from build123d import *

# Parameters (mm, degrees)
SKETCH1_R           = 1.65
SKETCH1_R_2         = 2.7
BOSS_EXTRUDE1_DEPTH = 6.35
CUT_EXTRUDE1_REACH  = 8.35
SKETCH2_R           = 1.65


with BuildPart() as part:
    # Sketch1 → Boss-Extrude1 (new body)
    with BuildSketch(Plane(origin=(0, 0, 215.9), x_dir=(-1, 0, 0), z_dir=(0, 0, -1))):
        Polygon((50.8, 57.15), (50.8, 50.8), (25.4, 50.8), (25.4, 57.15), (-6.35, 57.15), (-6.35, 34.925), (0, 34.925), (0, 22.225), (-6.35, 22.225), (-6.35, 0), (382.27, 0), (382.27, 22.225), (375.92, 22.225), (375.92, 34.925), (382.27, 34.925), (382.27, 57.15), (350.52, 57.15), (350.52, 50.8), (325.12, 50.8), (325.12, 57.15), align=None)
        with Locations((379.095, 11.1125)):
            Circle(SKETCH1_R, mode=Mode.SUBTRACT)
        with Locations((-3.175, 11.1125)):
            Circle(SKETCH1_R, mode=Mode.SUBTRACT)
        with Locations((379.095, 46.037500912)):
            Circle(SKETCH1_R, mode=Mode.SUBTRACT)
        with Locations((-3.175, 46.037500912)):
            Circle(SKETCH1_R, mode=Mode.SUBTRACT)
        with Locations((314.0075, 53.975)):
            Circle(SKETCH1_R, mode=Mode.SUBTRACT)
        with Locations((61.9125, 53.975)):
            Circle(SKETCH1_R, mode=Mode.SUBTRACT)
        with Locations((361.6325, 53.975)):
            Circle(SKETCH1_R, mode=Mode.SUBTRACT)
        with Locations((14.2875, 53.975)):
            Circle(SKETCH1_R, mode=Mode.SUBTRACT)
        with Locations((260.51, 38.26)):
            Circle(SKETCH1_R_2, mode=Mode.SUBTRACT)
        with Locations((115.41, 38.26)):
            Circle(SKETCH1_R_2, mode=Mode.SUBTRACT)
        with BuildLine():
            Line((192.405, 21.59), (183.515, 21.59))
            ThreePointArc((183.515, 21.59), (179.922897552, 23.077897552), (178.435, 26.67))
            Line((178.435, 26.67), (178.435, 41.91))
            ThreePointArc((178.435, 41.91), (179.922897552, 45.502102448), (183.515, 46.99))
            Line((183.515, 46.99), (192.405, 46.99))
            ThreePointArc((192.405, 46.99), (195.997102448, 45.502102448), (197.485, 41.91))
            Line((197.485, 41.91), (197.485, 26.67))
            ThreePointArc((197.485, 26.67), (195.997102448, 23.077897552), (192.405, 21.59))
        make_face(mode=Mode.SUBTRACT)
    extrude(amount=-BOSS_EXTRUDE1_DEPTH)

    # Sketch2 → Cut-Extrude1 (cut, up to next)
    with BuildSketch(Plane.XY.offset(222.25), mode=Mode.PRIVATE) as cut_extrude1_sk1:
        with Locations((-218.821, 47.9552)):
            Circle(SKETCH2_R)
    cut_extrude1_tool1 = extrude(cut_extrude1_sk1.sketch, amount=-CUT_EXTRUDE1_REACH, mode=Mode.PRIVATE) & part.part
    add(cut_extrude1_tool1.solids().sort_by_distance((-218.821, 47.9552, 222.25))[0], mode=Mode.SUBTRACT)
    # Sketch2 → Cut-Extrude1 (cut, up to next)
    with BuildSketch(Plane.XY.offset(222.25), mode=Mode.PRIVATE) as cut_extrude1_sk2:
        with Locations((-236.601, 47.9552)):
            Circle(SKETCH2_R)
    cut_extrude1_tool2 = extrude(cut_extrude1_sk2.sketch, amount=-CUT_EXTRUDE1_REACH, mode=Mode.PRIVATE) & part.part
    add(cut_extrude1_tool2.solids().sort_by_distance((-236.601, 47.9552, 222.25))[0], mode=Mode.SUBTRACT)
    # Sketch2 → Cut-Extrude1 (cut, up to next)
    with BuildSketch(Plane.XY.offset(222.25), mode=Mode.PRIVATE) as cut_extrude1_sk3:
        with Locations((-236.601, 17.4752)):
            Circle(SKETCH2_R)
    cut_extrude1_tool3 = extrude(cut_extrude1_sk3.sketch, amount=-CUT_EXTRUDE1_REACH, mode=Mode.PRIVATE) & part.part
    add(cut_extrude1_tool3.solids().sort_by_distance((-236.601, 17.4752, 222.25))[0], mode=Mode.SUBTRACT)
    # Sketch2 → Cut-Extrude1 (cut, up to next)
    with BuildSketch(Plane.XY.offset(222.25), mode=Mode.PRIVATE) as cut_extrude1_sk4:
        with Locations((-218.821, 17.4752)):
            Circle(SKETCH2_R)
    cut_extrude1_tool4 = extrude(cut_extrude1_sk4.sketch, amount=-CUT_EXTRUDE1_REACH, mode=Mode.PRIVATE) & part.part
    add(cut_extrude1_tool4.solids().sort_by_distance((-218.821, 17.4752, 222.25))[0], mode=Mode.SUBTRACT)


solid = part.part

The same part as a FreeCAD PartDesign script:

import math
import FreeCAD as App
import Part
import Sketcher
from FreeCAD import Vector
Q = App.Units.Quantity


def add_polygon(sketch, points):
    """Adds a closed chain of lines whose ends are joined by coincident constraints."""
    first, n = sketch.GeometryCount, len(points)
    for a, b in zip(points, points[1:] + points[:1]):
        sketch.addGeometry(Part.LineSegment(App.Vector(*a, 0), App.Vector(*b, 0)), False)
    for i in range(n):
        sketch.addConstraint(Sketcher.Constraint("Coincident", first + i, 2, first + (i + 1) % n, 1))

doc = App.newDocument("Part")
body = doc.addObject("PartDesign::Body", "Body")

# Sketch on XY plane
sketch1 = body.newObject("Sketcher::SketchObject", "Sketch")
sketch1.AttachmentSupport = (doc.getObject("XY_Plane"), [""])
sketch1.MapMode = "FlatFace"
sketch1.AttachmentOffset = App.Placement(Vector(0, 0, 8.5 * 25.4), App.Rotation())
add_polygon(sketch1, [(-50.8, 57.1), (-50.8, 50.8), (-25.4, 50.8), (-25.4, 57.1), (6.3, 57.1), (6.3, 34.9), (0, 34.9), (0, 22.2), (6.3, 22.2), (6.3, 0), (-382.3, 0), (-382.3, 22.2), (-375.9, 22.2), (-375.9, 34.9), (-382.3, 34.9), (-382.3, 57.1), (-350.5, 57.1), (-350.5, 50.8), (-325.1, 50.8), (-325.1, 57.1)])  # lines 0-19
sketch1.addGeometry(Part.Circle(Vector(3.2, 11.1, 0), Vector(0, 0, 1), 1.6), False)  # 20
sketch1.addGeometry(Part.Circle(Vector(-379.1, 11.1, 0), Vector(0, 0, 1), 1.6), False)  # 21
sketch1.addGeometry(Part.Circle(Vector(-115.4, 38.3, 0), Vector(0, 0, 1), 2.7), False)  # 22
sketch1.addGeometry(Part.Circle(Vector(3.2, 46, 0), Vector(0, 0, 1), 1.6), False)  # 23
sketch1.addGeometry(Part.Circle(Vector(-14.3, 54, 0), Vector(0, 0, 1), 1.6), False)  # 24
sketch1.addGeometry(Part.Circle(Vector(-61.9, 54, 0), Vector(0, 0, 1), 1.6), False)  # 25
sketch1.addGeometry(Part.ArcOfCircle(Part.Circle(Vector(-192.4, 26.7, 0), Vector(0, 0, 1), 5.1), math.radians(-180), math.radians(-90)), False)  # 26
sketch1.addGeometry(Part.LineSegment(Vector(-192.4, 21.6, 0), Vector(-183.5, 21.6, 0)), False)  # 27
sketch1.addGeometry(Part.ArcOfCircle(Part.Circle(Vector(-183.5, 26.7, 0), Vector(0, 0, 1), 5.1), math.radians(-90), math.radians(0)), False)  # 28
sketch1.addGeometry(Part.LineSegment(Vector(-178.4, 26.7, 0), Vector(-178.4, 41.9, 0)), False)  # 29
sketch1.addGeometry(Part.ArcOfCircle(Part.Circle(Vector(-183.5, 41.9, 0), Vector(0, 0, 1), 5.1), math.radians(0), math.radians(90)), False)  # 30
sketch1.addGeometry(Part.LineSegment(Vector(-183.5, 47, 0), Vector(-192.4, 47, 0)), False)  # 31
sketch1.addGeometry(Part.ArcOfCircle(Part.Circle(Vector(-192.4, 41.9, 0), Vector(0, 0, 1), 5.1), math.radians(90), math.radians(180)), False)  # 32
sketch1.addGeometry(Part.LineSegment(Vector(-197.5, 41.9, 0), Vector(-197.5, 26.7, 0)), False)  # 33
sketch1.addGeometry(Part.Circle(Vector(-260.5, 38.3, 0), Vector(0, 0, 1), 2.7), False)  # 34
sketch1.addGeometry(Part.Circle(Vector(-379.1, 46, 0), Vector(0, 0, 1), 1.6), False)  # 35
sketch1.addGeometry(Part.Circle(Vector(-314, 54, 0), Vector(0, 0, 1), 1.6), False)  # 36
sketch1.addGeometry(Part.Circle(Vector(-361.6, 54, 0), Vector(0, 0, 1), 1.6), False)  # 37
sketch1.addConstraint([
    Sketcher.Constraint("Tangent", 26, 2, 27, 1),
    Sketcher.Constraint("Tangent", 27, 2, 28, 1),
    Sketcher.Constraint("Tangent", 28, 2, 29, 1),
    Sketcher.Constraint("Tangent", 29, 2, 30, 1),
    Sketcher.Constraint("Tangent", 30, 2, 31, 1),
    Sketcher.Constraint("Tangent", 31, 2, 32, 1),
    Sketcher.Constraint("Tangent", 32, 2, 33, 1),
    Sketcher.Constraint("Tangent", 33, 2, 26, 1),
    Sketcher.Constraint("Vertical", 0),
    Sketcher.Constraint("Horizontal", 1),
    Sketcher.Constraint("Vertical", 2),
    Sketcher.Constraint("Horizontal", 3),
    Sketcher.Constraint("Vertical", 4),
    Sketcher.Constraint("Horizontal", 5),
    Sketcher.Constraint("Vertical", 6),
    Sketcher.Constraint("Horizontal", 7),
    Sketcher.Constraint("Vertical", 8),
    Sketcher.Constraint("Horizontal", 9),
    Sketcher.Constraint("Vertical", 10),
    Sketcher.Constraint("Horizontal", 11),
    Sketcher.Constraint("Vertical", 12),
    Sketcher.Constraint("Horizontal", 13),
    Sketcher.Constraint("Vertical", 14),
    Sketcher.Constraint("Horizontal", 15),
    Sketcher.Constraint("Vertical", 16),
    Sketcher.Constraint("Horizontal", 17),
    Sketcher.Constraint("Vertical", 18),
    Sketcher.Constraint("Horizontal", 19),
    Sketcher.Constraint("Horizontal", 27),
    Sketcher.Constraint("Vertical", 29),
    Sketcher.Constraint("Horizontal", 31),
    Sketcher.Constraint("Vertical", 33),
    Sketcher.Constraint("Equal", 20, 21),
    Sketcher.Constraint("Equal", 21, 23),
    Sketcher.Constraint("Equal", 23, 24),
    Sketcher.Constraint("Equal", 24, 25),
    Sketcher.Constraint("Equal", 26, 28),
    Sketcher.Constraint("Equal", 28, 30),
    Sketcher.Constraint("Equal", 30, 32),
    Sketcher.Constraint("Equal", 22, 34),
    Sketcher.Constraint("Equal", 25, 35),
    Sketcher.Constraint("Equal", 35, 36),
    Sketcher.Constraint("Equal", 36, 37),
    Sketcher.Constraint("PointOnObject", 5, 2, -2),
    Sketcher.Constraint("PointOnObject", 8, 2, -1),
    Sketcher.Constraint("Horizontal", 20, 3, 21, 3),
    Sketcher.Constraint("Horizontal", 24, 3, 25, 3),
    Sketcher.Constraint("Horizontal", 22, 3, 34, 3),
    Sketcher.Constraint("Horizontal", 23, 3, 35, 3),
    Sketcher.Constraint("Horizontal", 25, 3, 36, 3),
    Sketcher.Constraint("Horizontal", 36, 3, 37, 3),
    Sketcher.Constraint("Horizontal", 7, 2, 10, 2),
    Sketcher.Constraint("Horizontal", 5, 2, 12, 2),
    Sketcher.Constraint("Horizontal", 3, 2, 14, 2),
    Sketcher.Constraint("Horizontal", 1, 2, 16, 2),
    Sketcher.Constraint("Horizontal", 15, 2, 18, 2),
    Sketcher.Constraint("Vertical", 20, 3, 23, 3),
    Sketcher.Constraint("Vertical", 21, 3, 35, 3),
    Sketcher.Constraint("Vertical", 4, 2, 7, 2),
    Sketcher.Constraint("Vertical", 10, 2, 13, 2),
    Sketcher.Constraint("Equal", 7, 11),
    Sketcher.Constraint("Equal", 3, 15),
    Sketcher.Constraint("Equal", 1, 17),
    Sketcher.Constraint("Equal", 13, 0),
    Sketcher.Constraint("Equal", 4, 8),
    Sketcher.Constraint("Radius", 26, Q("0.2 in")),
    Sketcher.Constraint("DistanceX", 1, 1, 1, 2, Q("1 in")),
    Sketcher.Constraint("DistanceX", 9, 2, 9, 1, Q("15.3 in")),
    Sketcher.Constraint("DistanceX", 19, 1, 19, 2, Q("10.8 in")),
    Sketcher.Constraint("DistanceY", 6, 2, 6, 1, Q("0.5 in")),
    Sketcher.Constraint("DistanceY", 29, 1, 29, 2, Q("0.6 in")),
    Sketcher.Constraint("DistanceX", 0, 2, -1, 1, Q("2 in")),
    Sketcher.Constraint("DistanceY", -1, 1, 0, 2, Q("2 in")),
    Sketcher.Constraint("DistanceX", 27, 1, 27, 2, Q("0.35 in")),
    Sketcher.Constraint("DistanceX", 26, 3, 20, 3, Q("7.7 in")),
    Sketcher.Constraint("DistanceX", 35, 3, 30, 3, Q("7.7 in")),
    Sketcher.Constraint("Diameter", 20, 3.3),
    Sketcher.Constraint("Diameter", 22, 5.4),
    Sketcher.Constraint("DistanceY", -1, 1, 26, 3, Q("1.05 in")),
    Sketcher.Constraint("DistanceY", 4, 2, 24, 3, Q("0.75 in")),
    Sketcher.Constraint("DistanceX", -1, 1, 20, 3, Q("0.125 in")),
    Sketcher.Constraint("DistanceY", -1, 1, 20, 3, Q("0.4375 in")),
    Sketcher.Constraint("DistanceY", -1, 1, 23, 3, Q("1.8125 in")),
    Sketcher.Constraint("DistanceX", 24, 3, -1, 1, Q("0.5625 in")),
    Sketcher.Constraint("DistanceX", 25, 3, -1, 1, Q("2.4375 in")),
    Sketcher.Constraint("DistanceX", 35, 3, 36, 3, Q("2.5625 in")),
    Sketcher.Constraint("DistanceX", 35, 3, 37, 3, Q("0.6875 in")),
    Sketcher.Constraint("DistanceX", 22, 3, -1, 1, 115.41),
    Sketcher.Constraint("DistanceY", -1, 1, 22, 3, 38.26),
    Sketcher.Constraint("DistanceX", 34, 3, -1, 1, 260.51),
])
pad1 = body.newObject("PartDesign::Pad", "Pad")
pad1.Profile = sketch1
pad1.Length = Q("0.25 in")

# Sketch on XY plane
sketch2 = body.newObject("Sketcher::SketchObject", "Sketch001")
sketch2.AttachmentSupport = (doc.getObject("XY_Plane"), [""])
sketch2.MapMode = "FlatFace"
sketch2.AttachmentOffset = App.Placement(Vector(0, 0, 8.75 * 25.4), App.Rotation())
sketch2.addGeometry(Part.Circle(Vector(-218.8, 48, 0), Vector(0, 0, 1), 1.6), False)
sketch2.addConstraint([
    Sketcher.Constraint("Diameter", 0, 3.3),
    Sketcher.Constraint("DistanceX", 0, 3, -1, 1, Q("8.615 in")),
    Sketcher.Constraint("DistanceY", -1, 1, 0, 3, Q("1.888 in")),
])
pocket1 = body.newObject("PartDesign::Pocket", "Pocket")
pocket1.Profile = sketch2
pocket1.Type = "UpToFirst"

# Sketch on XY plane
sketch3 = body.newObject("Sketcher::SketchObject", "Sketch002")
sketch3.AttachmentSupport = (doc.getObject("XY_Plane"), [""])
sketch3.MapMode = "FlatFace"
sketch3.AttachmentOffset = App.Placement(Vector(0, 0, 8.75 * 25.4), App.Rotation())
sketch3.addGeometry(Part.Circle(Vector(-236.6, 48, 0), Vector(0, 0, 1), 1.6), False)
sketch3.addConstraint([
    Sketcher.Constraint("Diameter", 0, 3.3),
    Sketcher.Constraint("DistanceX", 0, 3, -1, 1, Q("9.315 in")),
    Sketcher.Constraint("DistanceY", -1, 1, 0, 3, Q("1.888 in")),
])
pocket2 = body.newObject("PartDesign::Pocket", "Pocket001")
pocket2.Profile = sketch3
pocket2.Type = "UpToFirst"

# Sketch on XY plane
sketch4 = body.newObject("Sketcher::SketchObject", "Sketch003")
sketch4.AttachmentSupport = (doc.getObject("XY_Plane"), [""])
sketch4.MapMode = "FlatFace"
sketch4.AttachmentOffset = App.Placement(Vector(0, 0, 8.75 * 25.4), App.Rotation())
sketch4.addGeometry(Part.Circle(Vector(-236.6, 17.5, 0), Vector(0, 0, 1), 1.6), False)
sketch4.addConstraint([
    Sketcher.Constraint("Diameter", 0, 3.3),
    Sketcher.Constraint("DistanceX", 0, 3, -1, 1, Q("9.315 in")),
    Sketcher.Constraint("DistanceY", -1, 1, 0, 3, Q("0.688 in")),
])
pocket3 = body.newObject("PartDesign::Pocket", "Pocket002")
pocket3.Profile = sketch4
pocket3.Type = "UpToFirst"

# Sketch on XY plane
sketch5 = body.newObject("Sketcher::SketchObject", "Sketch004")
sketch5.AttachmentSupport = (doc.getObject("XY_Plane"), [""])
sketch5.MapMode = "FlatFace"
sketch5.AttachmentOffset = App.Placement(Vector(0, 0, 8.75 * 25.4), App.Rotation())
sketch5.addGeometry(Part.Circle(Vector(-218.8, 17.5, 0), Vector(0, 0, 1), 1.6), False)
sketch5.addConstraint([
    Sketcher.Constraint("Diameter", 0, 3.3),
    Sketcher.Constraint("DistanceX", 0, 3, -1, 1, Q("8.615 in")),
    Sketcher.Constraint("DistanceY", -1, 1, 0, 3, Q("0.688 in")),
])
pocket4 = body.newObject("PartDesign::Pocket", "Pocket003")
pocket4.Profile = sketch5
pocket4.Type = "UpToFirst"

doc.recompute()
